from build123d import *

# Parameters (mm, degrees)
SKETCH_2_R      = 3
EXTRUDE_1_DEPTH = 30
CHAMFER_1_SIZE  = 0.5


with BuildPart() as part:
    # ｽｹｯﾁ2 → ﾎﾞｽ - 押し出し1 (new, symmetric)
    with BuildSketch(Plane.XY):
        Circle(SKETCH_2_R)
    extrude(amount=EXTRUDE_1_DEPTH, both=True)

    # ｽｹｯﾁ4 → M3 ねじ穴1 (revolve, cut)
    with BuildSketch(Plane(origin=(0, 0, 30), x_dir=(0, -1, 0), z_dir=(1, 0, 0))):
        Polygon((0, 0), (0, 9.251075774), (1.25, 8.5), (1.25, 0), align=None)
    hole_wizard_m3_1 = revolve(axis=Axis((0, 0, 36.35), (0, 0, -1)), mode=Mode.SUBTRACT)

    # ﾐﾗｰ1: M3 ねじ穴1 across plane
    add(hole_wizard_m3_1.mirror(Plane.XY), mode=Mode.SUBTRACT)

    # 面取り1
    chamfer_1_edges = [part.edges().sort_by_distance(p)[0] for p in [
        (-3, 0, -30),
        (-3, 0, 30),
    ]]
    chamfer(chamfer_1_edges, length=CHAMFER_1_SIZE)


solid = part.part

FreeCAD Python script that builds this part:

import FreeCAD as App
import Part
import Sketcher

V = App.Vector
Q = App.Units.Quantity


def edges_at(feature, points):
    """Names of the edges that pass closest to the given points."""
    edges = feature.Shape.Edges
    near = lambda p: min(range(len(edges)), key=lambda i: edges[i].distToShape(Part.Vertex(*p))[0])
    return sorted({f"Edge{near(p) + 1}" for p in points})


def add_polygon(sketch, points):
    """Adds a closed chain of lines whose ends are joined by coincident constraints."""
    first, n = sketch.GeometryCount, len(points)
    for a, b in zip(points, points[1:] + points[:1]):
        sketch.addGeometry(Part.LineSegment(App.Vector(*a, 0), App.Vector(*b, 0)), False)
    for i in range(n):
        sketch.addConstraint(Sketcher.Constraint("Coincident", first + i, 2, first + (i + 1) % n, 1))

doc = App.newDocument("Part")
params = doc.addObject("Spreadsheet::Sheet", "Params")
for row, (alias, value) in enumerate([
    ("sketch1_diameter", "6 mm"),
    ("pad1_length", "60 mm"),
    ("sketch2_height", "8.5 mm"),
    ("sketch2_width", "1.25 mm"),
    ("groove_angle", "360 deg"),
    ("chamfer_size", "0.5 mm"),
], start=1):
    params.set(f"A{row}", alias)
    params.set(f"B{row}", "=" + value)
    params.setAlias(f"B{row}", alias)

body = doc.addObject("PartDesign::Body", "Body")

sketch1 = doc.addObject("Sketcher::SketchObject", "Sketch")
body.addObject(sketch1)
sketch1.AttachmentSupport = (doc.XY_Plane, [""])
sketch1.MapMode = "FlatFace"
sketch1.addGeometry(Part.Circle(V(0, 0, 0), V(0, 0, 1), 3), False)
sketch1.addConstraint([
    Sketcher.Constraint("Coincident", 0, 3, -1, 1),
    Sketcher.Constraint("Diameter", 0, Q("6 mm")),
])
sketch1.setExpression("Constraints[1]", "Params.sketch1_diameter")
pad1 = doc.addObject("PartDesign::Pad", "Pad")
body.addObject(pad1)
pad1.Profile = sketch1
pad1.setExpression("Length", "Params.pad1_length")
pad1.Midplane = True

sketch2 = doc.addObject("Sketcher::SketchObject", "Sketch001")
body.addObject(sketch2)
sketch2.AttachmentSupport = (doc.YZ_Plane, [""])
sketch2.MapMode = "FlatFace"
add_polygon(sketch2, [(0, 20.748924), (0, 30), (-1.25, 30), (-1.25, 21.5)])
sketch2.addConstraint([
    Sketcher.Constraint("Vertical", 0),
    Sketcher.Constraint("Horizontal", 1),
    Sketcher.Constraint("Vertical", 2),
    Sketcher.Constraint("PointOnObject", 0, 2, -2),
    Sketcher.Constraint("Angle", 3, Q("-31 deg")),
    Sketcher.Constraint("DistanceY", 2, 2, 2, 1, Q("8.5 mm")),
    Sketcher.Constraint("DistanceY", -1, 1, 0, 2, Q("30 mm")),
    Sketcher.Constraint("DistanceX", 1, 2, 1, 1, Q("1.25 mm")),
])
sketch2.setExpression("Constraints[9]", "Params.sketch2_height")
sketch2.setExpression("Constraints[11]", "Params.sketch2_width")
groove = doc.addObject("PartDesign::Groove", "Groove")
body.addObject(groove)
groove.Profile = sketch2
groove.ReferenceAxis = (sketch2, ["V_Axis"])
groove.setExpression("Angle", "Params.groove_angle")
doc.recompute()

mirrored = doc.addObject("PartDesign::Mirrored", "Mirrored")
body.addObject(mirrored)
mirrored.Originals = [groove]
mirrored.MirrorPlane = (doc.XY_Plane, [""])
body.Tip = mirrored
doc.recompute()

chamfer = doc.addObject("PartDesign::Chamfer", "Chamfer")
body.addObject(chamfer)
chamfer.Base = (mirrored, edges_at(mirrored, [(-3, 0, -30), (-3, 0, 30)]))
chamfer.setExpression("Size", "Params.chamfer_size")

doc.recompute()
